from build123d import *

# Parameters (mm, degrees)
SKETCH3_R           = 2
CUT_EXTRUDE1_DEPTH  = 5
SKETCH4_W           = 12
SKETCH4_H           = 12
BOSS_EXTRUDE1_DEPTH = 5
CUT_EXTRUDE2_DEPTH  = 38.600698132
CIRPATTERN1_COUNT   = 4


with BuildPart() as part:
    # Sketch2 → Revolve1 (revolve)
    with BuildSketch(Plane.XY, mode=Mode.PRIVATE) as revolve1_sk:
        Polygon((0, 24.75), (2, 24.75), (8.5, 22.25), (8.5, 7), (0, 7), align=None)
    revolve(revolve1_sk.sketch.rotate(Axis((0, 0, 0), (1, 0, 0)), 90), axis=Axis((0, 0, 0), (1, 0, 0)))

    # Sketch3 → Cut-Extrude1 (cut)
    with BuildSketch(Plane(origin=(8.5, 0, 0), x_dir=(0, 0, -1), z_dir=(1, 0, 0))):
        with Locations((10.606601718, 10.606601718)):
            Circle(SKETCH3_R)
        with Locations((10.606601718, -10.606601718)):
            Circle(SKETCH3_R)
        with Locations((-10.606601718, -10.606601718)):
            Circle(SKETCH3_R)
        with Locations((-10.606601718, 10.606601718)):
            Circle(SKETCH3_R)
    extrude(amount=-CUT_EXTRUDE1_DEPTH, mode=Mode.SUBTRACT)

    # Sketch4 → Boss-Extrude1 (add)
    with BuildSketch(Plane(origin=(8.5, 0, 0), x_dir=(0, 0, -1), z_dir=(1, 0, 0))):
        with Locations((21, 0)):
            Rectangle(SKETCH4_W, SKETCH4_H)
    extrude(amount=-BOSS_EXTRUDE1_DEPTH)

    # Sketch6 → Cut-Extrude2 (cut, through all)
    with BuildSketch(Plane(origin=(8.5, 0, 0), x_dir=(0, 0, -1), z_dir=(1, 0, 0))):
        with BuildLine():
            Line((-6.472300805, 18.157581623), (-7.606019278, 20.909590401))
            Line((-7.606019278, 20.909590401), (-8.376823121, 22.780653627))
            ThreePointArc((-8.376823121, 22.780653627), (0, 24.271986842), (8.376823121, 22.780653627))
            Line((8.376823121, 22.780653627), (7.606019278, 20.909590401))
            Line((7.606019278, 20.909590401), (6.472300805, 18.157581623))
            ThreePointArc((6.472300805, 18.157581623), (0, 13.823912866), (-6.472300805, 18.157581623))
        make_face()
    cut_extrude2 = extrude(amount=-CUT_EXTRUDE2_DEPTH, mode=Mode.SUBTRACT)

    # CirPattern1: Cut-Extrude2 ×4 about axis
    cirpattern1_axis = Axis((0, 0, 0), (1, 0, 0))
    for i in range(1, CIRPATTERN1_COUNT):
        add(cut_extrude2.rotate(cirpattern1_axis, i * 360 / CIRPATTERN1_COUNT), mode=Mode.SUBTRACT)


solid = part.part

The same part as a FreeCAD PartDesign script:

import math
import FreeCAD as App
import Part
import Sketcher
Q = App.Units.Quantity


def add_polygon(sketch, points):
    """Adds a closed chain of lines whose ends are joined by coincident constraints."""
    first, n = sketch.GeometryCount, len(points)
    for a, b in zip(points, points[1:] + points[:1]):
        sketch.addGeometry(Part.LineSegment(App.Vector(*a, 0), App.Vector(*b, 0)), False)
    for i in range(n):
        sketch.addConstraint(Sketcher.Constraint("Coincident", first + i, 2, first + (i + 1) % n, 1))

doc = App.newDocument("Part")
body = doc.addObject("PartDesign::Body", "Body")
body.AllowCompound = True

# Sketch on XY plane
sketch1 = body.newObject("Sketcher::SketchObject", "Sketch")
sketch1.AttachmentSupport = (doc.getObject("XY_Plane"), [""])
sketch1.MapMode = "FlatFace"
add_polygon(sketch1, [(2, 24.8), (0, 24.8), (0, 7), (8.5, 7), (8.5, 22.2)])  # lines 0-4
sketch1.addConstraint([
    Sketcher.Constraint("Horizontal", 0),
    Sketcher.Constraint("Vertical", 1),
    Sketcher.Constraint("Horizontal", 2),
    Sketcher.Constraint("Vertical", 3),
    Sketcher.Constraint("PointOnObject", 0, 2, -2),
    Sketcher.Constraint("DistanceX", 0, 2, 0, 1, Q("2 mm")),
    Sketcher.Constraint("DistanceX", 2, 1, 2, 2, Q("8.5 mm")),
    Sketcher.Constraint("DistanceY", -1, 1, 1, 2, Q("7 mm")),
    Sketcher.Constraint("DistanceY", 1, 2, 1, 1, Q("17.75 mm")),
    Sketcher.Constraint("DistanceY", 3, 1, 3, 2, Q("15.25 mm")),
])
revolution = body.newObject("PartDesign::Revolution", "Revolution")
revolution.Profile = sketch1
revolution.ReferenceAxis = (sketch1, ["H_Axis"])
revolution.Angle = 360

# Sketch on YZ plane
sketch2 = body.newObject("Sketcher::SketchObject", "Sketch001")
sketch2.AttachmentSupport = (doc.getObject("YZ_Plane"), [""])
sketch2.MapMode = "FlatFace"
sketch2.AttachmentOffset = App.Placement(App.Vector(0, 0, 8.5), App.Rotation())
sketch2.addGeometry([
    Part.Circle(App.Vector(10.6, -10.6, 0), App.Vector(0, 0, 1), 2),
    Part.Circle(App.Vector(-10.6, -10.6, 0), App.Vector(0, 0, 1), 2),
    Part.Circle(App.Vector(-10.6, 10.6, 0), App.Vector(0, 0, 1), 2),
    Part.Circle(App.Vector(10.6, 10.6, 0), App.Vector(0, 0, 1), 2),
], False)
sketch2.addConstraint([
    Sketcher.Constraint("Equal", 0, 1),
    Sketcher.Constraint("Equal", 1, 2),
    Sketcher.Constraint("Equal", 2, 3),
    Sketcher.Constraint("Symmetric", 0, 3, 2, 3, -1, 1),
    Sketcher.Constraint("Symmetric", 1, 3, 3, 3, -1, 1),
    Sketcher.Constraint("Symmetric", 0, 3, 1, 3, -2),
    Sketcher.Constraint("Diameter", 0, Q("4 mm")),
    Sketcher.Constraint("DistanceX", -1, 1, 0, 3, Q("10.606602 mm")),
    Sketcher.Constraint("DistanceY", 0, 3, -1, 1, Q("10.606602 mm")),
])
pocket1 = body.newObject("PartDesign::Pocket", "Pocket")
pocket1.Profile = sketch2
pocket1.Length = 5

# Sketch on YZ plane
sketch3 = body.newObject("Sketcher::SketchObject", "Sketch002")
sketch3.AttachmentSupport = (doc.getObject("YZ_Plane"), [""])
sketch3.MapMode = "FlatFace"
sketch3.AttachmentOffset = App.Placement(App.Vector(0, 0, 8.5), App.Rotation())
add_polygon(sketch3, [(6, -15), (-6, -15), (-6, -27), (6, -27)])  # lines 0-3
sketch3.addConstraint([
    Sketcher.Constraint("Horizontal", 0),
    Sketcher.Constraint("Vertical", 1),
    Sketcher.Constraint("Horizontal", 2),
    Sketcher.Constraint("Vertical", 3),
    Sketcher.Constraint("Equal", 2, 1),
    Sketcher.Constraint("DistanceX", 0, 2, 0, 1, Q("12 mm")),
    Sketcher.Constraint("DistanceX", 0, 2, -1, 1, Q("6 mm")),
    Sketcher.Constraint("DistanceY", 0, 2, -1, 1, Q("15 mm")),
])
pad1 = body.newObject("PartDesign::Pad", "Pad")
pad1.Profile = sketch3
pad1.Length = 5
pad1.Reversed = True

# Sketch on YZ plane
sketch4 = body.newObject("Sketcher::SketchObject", "Sketch003")
sketch4.AttachmentSupport = (doc.getObject("YZ_Plane"), [""])
sketch4.MapMode = "FlatFace"
sketch4.AttachmentOffset = App.Placement(App.Vector(0, 0, 8.5), App.Rotation())
sketch4.addGeometry([
    Part.LineSegment(App.Vector(20.9, 7.6, 0), App.Vector(18.2, 6.5, 0)),  # 0
    Part.ArcOfCircle(Part.Circle(App.Vector(20.8, 0, 0), App.Vector(0, 0, 1), 7), math.radians(112), math.radians(248)),  # 1
    Part.LineSegment(App.Vector(18.2, -6.5, 0), App.Vector(20.9, -7.6, 0)),  # 2
    Part.LineSegment(App.Vector(20.9, -7.6, 0), App.Vector(22.8, -8.4, 0)),  # 3
    Part.ArcOfCircle(Part.Circle(App.Vector(0, 0, 0), App.Vector(0, 0, 1), 24.3), math.radians(-20), math.radians(20)),  # 4
    Part.LineSegment(App.Vector(22.8, 8.4, 0), App.Vector(20.9, 7.6, 0)),  # 5
], False)
sketch4.addConstraint([
    Sketcher.Constraint("Tangent", 0, 2, 1, 1),
    Sketcher.Constraint("Tangent", 1, 2, 2, 1),
    Sketcher.Constraint("Coincident", 2, 2, 3, 1),
    Sketcher.Constraint("Coincident", 3, 2, 4, 1),
    Sketcher.Constraint("Coincident", 4, 2, 5, 1),
    Sketcher.Constraint("Coincident", 5, 2, 0, 1),
    Sketcher.Constraint("Coincident", 4, 3, -1, 1),
    Sketcher.Constraint("Symmetric", 0, 2, 1, 2, -1),
    Sketcher.Constraint("Parallel", 2, 3),
    Sketcher.Constraint("Parallel", 0, 5),
    Sketcher.Constraint("Vertical", 2, 2, 5, 2),
    Sketcher.Constraint("Radius", 1, Q("7 mm")),
    Sketcher.Constraint("Radius", 4, Q("24.271987 mm")),
    Sketcher.Constraint("DistanceY", -1, 1, 0, 2, Q("6.472301 mm")),
    Sketcher.Constraint("DistanceX", -1, 1, 0, 2, Q("18.157582 mm")),
    Sketcher.Constraint("DistanceX", -1, 1, 2, 2, Q("20.90959 mm")),
])
pocket2 = body.newObject("PartDesign::Pocket", "Pocket001")
pocket2.Profile = sketch4
pocket2.Type = "ThroughAll"
doc.recompute()

polarpattern = body.newObject("PartDesign::PolarPattern", "PolarPattern")
polarpattern.Originals = [pocket2]
polarpattern.Axis = (doc.getObject("X_Axis"), [""])
polarpattern.Angle = 360
polarpattern.Occurrences = 4
body.Tip = polarpattern

doc.recompute()
